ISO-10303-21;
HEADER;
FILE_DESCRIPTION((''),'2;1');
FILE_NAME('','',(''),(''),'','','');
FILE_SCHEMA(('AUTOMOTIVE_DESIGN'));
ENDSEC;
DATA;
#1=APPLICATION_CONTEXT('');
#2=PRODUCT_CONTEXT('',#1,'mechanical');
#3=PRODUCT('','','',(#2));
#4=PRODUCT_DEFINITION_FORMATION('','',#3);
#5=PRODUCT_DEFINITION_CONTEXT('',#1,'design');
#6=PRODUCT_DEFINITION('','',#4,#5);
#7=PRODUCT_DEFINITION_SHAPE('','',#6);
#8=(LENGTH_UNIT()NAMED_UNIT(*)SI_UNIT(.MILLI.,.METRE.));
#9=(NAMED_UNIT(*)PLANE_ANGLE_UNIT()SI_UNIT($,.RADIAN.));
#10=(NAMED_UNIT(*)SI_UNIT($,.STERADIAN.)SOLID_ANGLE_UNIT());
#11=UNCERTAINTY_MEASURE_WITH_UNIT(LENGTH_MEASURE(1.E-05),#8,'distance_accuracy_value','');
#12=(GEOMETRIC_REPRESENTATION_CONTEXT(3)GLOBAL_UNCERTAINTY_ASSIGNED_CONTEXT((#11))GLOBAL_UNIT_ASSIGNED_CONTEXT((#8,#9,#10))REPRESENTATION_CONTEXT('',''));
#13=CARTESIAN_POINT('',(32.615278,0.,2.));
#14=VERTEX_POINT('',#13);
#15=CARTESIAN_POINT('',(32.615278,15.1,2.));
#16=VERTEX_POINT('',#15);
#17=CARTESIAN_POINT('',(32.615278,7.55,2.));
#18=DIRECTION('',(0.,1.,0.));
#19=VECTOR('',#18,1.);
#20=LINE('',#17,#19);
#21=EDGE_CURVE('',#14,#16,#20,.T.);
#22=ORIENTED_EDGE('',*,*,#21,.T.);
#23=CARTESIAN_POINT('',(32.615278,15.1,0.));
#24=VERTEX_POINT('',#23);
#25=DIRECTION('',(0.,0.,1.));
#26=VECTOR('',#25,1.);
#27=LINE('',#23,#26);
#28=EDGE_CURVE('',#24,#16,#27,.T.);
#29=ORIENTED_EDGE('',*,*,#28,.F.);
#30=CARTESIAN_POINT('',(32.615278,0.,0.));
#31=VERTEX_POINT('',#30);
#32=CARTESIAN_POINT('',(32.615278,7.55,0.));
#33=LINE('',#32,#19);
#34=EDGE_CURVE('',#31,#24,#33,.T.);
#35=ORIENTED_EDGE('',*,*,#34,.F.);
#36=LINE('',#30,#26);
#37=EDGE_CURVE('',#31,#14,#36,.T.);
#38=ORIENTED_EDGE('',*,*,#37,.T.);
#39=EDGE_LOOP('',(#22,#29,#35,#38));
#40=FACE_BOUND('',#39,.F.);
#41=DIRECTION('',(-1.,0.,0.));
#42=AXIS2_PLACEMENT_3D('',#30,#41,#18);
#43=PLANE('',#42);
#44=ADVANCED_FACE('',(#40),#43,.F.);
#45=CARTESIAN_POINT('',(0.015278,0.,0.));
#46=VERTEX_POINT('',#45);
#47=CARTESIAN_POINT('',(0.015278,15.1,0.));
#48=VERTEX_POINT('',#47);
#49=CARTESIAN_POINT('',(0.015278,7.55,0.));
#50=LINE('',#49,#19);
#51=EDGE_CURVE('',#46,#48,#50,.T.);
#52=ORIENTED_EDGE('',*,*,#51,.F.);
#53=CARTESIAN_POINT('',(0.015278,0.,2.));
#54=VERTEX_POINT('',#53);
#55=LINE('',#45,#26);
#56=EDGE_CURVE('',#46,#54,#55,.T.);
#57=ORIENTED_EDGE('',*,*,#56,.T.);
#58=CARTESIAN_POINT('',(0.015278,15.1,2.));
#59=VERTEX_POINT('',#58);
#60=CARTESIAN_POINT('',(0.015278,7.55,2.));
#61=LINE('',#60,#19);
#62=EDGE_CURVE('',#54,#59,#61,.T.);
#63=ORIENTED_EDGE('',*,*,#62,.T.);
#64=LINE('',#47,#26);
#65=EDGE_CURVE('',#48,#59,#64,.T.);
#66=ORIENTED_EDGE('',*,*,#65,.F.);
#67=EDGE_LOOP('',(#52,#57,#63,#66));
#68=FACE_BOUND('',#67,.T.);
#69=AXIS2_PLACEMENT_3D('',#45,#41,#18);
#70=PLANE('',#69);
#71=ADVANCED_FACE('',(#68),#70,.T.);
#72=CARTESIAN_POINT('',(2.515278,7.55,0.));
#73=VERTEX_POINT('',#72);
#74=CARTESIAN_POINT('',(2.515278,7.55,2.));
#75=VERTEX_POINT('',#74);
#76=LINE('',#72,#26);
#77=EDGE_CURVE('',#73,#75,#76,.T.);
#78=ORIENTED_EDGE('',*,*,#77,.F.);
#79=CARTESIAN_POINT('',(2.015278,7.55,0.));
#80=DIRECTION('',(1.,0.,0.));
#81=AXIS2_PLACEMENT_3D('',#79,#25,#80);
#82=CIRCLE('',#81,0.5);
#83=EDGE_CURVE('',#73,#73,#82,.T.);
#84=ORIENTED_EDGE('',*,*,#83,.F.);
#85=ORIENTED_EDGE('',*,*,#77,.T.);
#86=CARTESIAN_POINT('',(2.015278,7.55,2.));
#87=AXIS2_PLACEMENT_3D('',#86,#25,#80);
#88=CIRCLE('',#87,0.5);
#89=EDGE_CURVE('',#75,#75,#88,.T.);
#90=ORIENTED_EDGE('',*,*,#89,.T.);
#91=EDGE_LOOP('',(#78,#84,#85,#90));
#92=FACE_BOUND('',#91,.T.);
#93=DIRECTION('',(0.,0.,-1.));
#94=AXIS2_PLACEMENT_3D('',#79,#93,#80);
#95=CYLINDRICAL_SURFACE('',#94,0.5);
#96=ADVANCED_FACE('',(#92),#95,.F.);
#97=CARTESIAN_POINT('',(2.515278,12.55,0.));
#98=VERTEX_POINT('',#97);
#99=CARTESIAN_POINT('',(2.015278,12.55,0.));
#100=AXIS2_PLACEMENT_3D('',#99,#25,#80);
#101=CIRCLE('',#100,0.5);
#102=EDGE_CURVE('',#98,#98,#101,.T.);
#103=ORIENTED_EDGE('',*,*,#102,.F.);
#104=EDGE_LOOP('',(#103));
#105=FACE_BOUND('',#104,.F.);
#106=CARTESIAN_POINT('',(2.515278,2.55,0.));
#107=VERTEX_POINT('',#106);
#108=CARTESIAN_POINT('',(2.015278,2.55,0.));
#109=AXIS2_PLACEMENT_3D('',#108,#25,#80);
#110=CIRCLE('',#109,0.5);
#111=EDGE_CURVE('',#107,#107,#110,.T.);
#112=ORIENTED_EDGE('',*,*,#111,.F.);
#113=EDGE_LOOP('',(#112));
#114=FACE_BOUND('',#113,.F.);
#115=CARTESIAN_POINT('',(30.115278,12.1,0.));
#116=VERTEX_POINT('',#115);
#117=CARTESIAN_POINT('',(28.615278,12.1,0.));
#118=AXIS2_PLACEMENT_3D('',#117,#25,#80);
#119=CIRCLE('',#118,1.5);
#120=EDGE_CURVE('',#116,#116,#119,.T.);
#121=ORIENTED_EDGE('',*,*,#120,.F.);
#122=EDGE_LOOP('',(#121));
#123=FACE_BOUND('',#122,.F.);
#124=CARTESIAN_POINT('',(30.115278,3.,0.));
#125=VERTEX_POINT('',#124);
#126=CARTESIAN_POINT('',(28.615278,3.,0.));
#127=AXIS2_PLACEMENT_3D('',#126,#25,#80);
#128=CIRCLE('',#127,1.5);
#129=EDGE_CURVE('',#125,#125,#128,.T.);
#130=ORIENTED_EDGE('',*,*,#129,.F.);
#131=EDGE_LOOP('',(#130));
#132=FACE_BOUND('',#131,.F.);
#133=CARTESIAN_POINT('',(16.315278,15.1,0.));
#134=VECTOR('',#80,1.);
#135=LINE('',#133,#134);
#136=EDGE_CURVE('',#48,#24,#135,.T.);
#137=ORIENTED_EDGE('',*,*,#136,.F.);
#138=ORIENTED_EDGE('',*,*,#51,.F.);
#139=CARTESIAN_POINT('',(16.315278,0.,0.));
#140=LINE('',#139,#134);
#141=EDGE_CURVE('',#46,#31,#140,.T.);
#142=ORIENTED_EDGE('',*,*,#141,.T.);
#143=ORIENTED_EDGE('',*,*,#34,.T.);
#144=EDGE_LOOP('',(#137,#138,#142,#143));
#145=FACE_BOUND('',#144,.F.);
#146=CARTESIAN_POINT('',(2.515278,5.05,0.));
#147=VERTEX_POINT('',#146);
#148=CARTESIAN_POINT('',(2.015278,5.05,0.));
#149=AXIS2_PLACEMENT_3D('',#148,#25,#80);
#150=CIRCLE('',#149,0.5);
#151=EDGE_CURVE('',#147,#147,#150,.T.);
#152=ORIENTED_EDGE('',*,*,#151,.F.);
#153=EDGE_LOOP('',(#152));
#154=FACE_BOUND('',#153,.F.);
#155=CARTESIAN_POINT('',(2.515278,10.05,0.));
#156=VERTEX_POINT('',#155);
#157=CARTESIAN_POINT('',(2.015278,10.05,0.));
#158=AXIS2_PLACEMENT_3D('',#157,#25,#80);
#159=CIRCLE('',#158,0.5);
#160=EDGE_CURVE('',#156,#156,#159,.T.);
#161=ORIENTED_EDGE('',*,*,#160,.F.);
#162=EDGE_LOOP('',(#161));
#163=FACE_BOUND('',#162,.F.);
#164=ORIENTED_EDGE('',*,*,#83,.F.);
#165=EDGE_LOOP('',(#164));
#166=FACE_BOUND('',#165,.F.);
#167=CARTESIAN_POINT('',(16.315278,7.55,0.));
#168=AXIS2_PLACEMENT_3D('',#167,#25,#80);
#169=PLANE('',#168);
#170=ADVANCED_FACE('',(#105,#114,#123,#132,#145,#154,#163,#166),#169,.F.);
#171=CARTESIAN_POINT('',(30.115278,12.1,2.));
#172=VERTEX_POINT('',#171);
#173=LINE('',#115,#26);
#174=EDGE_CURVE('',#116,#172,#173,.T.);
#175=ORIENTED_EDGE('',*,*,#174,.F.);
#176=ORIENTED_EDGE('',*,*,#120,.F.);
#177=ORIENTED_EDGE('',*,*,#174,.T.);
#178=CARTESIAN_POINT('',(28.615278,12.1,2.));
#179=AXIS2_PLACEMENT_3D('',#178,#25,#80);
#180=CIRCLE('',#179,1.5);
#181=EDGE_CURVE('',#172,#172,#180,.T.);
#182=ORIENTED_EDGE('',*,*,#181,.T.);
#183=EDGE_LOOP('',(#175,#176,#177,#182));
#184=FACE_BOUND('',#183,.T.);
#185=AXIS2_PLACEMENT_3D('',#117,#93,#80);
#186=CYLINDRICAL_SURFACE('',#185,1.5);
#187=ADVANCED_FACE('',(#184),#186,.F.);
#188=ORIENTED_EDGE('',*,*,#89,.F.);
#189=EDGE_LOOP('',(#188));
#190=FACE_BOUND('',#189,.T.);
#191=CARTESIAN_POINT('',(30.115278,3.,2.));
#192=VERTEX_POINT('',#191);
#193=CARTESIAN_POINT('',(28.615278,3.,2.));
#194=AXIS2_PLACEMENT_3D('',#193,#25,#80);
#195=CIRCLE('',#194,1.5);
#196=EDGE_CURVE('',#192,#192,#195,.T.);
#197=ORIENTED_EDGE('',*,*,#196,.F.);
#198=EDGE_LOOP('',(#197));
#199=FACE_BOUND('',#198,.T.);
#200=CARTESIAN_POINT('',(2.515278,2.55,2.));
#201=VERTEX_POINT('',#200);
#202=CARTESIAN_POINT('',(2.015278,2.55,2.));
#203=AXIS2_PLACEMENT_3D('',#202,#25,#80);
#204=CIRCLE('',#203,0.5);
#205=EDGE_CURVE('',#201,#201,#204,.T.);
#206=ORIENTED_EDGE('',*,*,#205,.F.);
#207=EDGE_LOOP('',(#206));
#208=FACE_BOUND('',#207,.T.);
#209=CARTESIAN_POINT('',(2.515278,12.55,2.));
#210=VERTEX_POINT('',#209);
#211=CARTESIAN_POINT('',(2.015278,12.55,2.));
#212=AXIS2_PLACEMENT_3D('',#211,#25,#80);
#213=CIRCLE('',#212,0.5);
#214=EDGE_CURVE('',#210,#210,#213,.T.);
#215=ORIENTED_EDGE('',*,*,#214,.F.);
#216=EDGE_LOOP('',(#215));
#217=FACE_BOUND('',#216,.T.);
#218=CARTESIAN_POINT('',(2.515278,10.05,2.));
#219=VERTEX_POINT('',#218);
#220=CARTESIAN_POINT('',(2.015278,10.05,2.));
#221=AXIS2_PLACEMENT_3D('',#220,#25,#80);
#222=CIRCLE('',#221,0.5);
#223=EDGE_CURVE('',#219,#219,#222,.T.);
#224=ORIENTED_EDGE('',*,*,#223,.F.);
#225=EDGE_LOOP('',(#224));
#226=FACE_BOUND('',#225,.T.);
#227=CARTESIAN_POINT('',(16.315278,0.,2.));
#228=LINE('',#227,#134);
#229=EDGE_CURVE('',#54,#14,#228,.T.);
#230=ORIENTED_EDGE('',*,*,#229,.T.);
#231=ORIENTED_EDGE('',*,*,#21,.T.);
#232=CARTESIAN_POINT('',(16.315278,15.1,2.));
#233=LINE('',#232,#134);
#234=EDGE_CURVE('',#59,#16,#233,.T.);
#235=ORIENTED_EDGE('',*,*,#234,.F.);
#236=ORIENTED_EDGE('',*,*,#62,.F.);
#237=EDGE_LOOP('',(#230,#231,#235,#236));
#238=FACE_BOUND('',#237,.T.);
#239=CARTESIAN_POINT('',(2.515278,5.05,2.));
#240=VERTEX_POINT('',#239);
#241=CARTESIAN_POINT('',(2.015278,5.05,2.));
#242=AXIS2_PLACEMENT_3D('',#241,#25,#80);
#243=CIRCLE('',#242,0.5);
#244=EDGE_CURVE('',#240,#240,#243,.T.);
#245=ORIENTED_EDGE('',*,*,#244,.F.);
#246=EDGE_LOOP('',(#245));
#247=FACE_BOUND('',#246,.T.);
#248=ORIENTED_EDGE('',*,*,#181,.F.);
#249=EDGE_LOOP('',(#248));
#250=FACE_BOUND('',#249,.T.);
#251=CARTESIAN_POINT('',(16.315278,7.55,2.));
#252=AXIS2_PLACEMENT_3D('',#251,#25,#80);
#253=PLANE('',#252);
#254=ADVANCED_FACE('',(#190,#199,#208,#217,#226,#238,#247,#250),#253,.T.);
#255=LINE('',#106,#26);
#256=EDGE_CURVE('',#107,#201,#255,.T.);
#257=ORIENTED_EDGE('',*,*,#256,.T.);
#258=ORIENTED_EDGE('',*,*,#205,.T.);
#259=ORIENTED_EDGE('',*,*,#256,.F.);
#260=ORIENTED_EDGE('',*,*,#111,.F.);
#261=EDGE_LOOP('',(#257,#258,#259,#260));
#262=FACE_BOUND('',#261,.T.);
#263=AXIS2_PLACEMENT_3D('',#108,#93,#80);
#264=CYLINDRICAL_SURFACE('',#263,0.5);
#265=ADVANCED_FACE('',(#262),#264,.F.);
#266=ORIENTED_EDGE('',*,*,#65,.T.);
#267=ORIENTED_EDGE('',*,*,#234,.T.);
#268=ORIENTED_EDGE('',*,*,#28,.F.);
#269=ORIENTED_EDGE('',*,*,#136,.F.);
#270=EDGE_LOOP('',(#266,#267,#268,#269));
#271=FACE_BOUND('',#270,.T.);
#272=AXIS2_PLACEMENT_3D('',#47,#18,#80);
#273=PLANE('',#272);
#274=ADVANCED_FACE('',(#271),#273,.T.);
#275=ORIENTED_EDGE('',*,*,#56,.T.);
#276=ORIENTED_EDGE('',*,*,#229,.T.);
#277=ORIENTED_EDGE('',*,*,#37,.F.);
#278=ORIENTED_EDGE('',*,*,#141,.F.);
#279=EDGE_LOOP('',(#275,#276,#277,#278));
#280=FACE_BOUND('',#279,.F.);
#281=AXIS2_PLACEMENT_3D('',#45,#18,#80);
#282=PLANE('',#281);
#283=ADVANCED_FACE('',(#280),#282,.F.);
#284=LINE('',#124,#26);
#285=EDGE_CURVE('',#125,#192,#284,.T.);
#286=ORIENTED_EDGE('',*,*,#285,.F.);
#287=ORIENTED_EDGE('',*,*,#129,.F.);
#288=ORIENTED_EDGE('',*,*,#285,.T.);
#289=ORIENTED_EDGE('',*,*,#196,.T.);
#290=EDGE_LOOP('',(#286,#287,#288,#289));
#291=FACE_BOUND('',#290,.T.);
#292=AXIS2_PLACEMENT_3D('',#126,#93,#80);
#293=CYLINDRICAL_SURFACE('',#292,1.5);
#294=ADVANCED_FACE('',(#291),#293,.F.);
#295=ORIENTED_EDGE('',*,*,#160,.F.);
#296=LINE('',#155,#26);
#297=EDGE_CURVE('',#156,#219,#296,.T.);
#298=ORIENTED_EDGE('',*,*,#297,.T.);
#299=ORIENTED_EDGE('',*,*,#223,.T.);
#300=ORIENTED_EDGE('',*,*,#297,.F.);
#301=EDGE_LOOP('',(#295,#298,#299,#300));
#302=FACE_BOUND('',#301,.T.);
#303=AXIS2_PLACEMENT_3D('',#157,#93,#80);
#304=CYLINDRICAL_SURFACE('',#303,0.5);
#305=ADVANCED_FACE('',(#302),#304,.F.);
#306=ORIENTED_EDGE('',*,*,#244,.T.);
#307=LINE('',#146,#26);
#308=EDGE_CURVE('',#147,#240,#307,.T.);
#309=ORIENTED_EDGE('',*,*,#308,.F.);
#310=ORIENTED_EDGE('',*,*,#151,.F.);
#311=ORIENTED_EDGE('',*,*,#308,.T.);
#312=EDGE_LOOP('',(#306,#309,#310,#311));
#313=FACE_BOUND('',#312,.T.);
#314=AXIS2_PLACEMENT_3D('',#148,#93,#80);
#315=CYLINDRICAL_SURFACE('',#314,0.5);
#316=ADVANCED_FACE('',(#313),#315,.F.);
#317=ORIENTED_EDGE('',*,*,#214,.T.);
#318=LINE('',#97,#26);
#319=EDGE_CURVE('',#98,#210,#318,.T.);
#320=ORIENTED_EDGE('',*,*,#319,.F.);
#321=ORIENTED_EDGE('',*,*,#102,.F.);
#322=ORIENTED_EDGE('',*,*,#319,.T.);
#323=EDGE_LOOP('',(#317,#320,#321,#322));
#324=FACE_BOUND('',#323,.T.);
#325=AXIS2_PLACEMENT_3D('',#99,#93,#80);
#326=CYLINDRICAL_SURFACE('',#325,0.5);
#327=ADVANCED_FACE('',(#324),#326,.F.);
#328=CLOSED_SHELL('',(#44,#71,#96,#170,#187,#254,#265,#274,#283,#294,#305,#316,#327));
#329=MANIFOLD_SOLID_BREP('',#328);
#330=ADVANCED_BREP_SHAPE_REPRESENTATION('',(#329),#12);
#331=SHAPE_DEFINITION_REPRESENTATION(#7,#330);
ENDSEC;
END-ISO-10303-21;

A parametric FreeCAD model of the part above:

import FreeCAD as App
import Part
import Sketcher
from FreeCAD import Vector

doc = App.newDocument("Part")
params = doc.addObject("Spreadsheet::Sheet", "Params")
for row, (alias, value) in enumerate([
    ("sketch1_diameter", "1 mm"),
    ("sketch1_diameter2", "3 mm"),
    ("sketch1_width", "32.6 mm"),
    ("sketch1_height", "15.1 mm"),
    ("pad1_length", "2 mm"),
], start=1):
    params.set(f"A{row}", alias)
    params.set(f"B{row}", "=" + value)
    params.setAlias(f"B{row}", alias)

body = doc.addObject("PartDesign::Body", "Body")

sketch1 = doc.addObject("Sketcher::SketchObject", "Sketch")
body.addObject(sketch1)
sketch1.AttachmentSupport = (doc.XY_Plane, [""])
sketch1.MapMode = "FlatFace"
sketch1.addGeometry([
    Part.LineSegment(Vector(0, 15.1, 0), Vector(0, 0, 0)),
    Part.LineSegment(Vector(0, 0, 0), Vector(32.6, 0, 0)),
    Part.LineSegment(Vector(32.6, 0, 0), Vector(32.6, 15.1, 0)),
    Part.LineSegment(Vector(32.6, 15.1, 0), Vector(0, 15.1, 0)),
    Part.Circle(Vector(2, 2.5, 0), Vector(0, 0, 1), 0.5),
    Part.Circle(Vector(2, 5, 0), Vector(0, 0, 1), 0.5),
    Part.Circle(Vector(28.6, 3, 0), Vector(0, 0, 1), 1.5),
    Part.Circle(Vector(2, 7.5, 0), Vector(0, 0, 1), 0.5),
    Part.Circle(Vector(2, 10.1, 0), Vector(0, 0, 1), 0.5),
    Part.Circle(Vector(2, 12.6, 0), Vector(0, 0, 1), 0.5),
    Part.Circle(Vector(28.6, 12.1, 0), Vector(0, 0, 1), 1.5),
], False)
sketch1.addConstraint([
    Sketcher.Constraint("Coincident", 0, 2, 1, 1),
    Sketcher.Constraint("Coincident", 1, 2, 2, 1),
    Sketcher.Constraint("Coincident", 2, 2, 3, 1),
    Sketcher.Constraint("Coincident", 3, 2, 0, 1),
    Sketcher.Constraint("Vertical", 0),
    Sketcher.Constraint("Horizontal", 1),
    Sketcher.Constraint("Vertical", 2),
    Sketcher.Constraint("Horizontal", 3),
    Sketcher.Constraint("Equal", 4, 5),
    Sketcher.Constraint("Equal", 5, 7),
    Sketcher.Constraint("Equal", 7, 8),
    Sketcher.Constraint("Equal", 8, 9),
    Sketcher.Constraint("Equal", 6, 10),
    Sketcher.Constraint("PointOnObject", 0, 2, -1),
    Sketcher.Constraint("Vertical", 4, 3, 5, 3),
    Sketcher.Constraint("Vertical", 5, 3, 7, 3),
    Sketcher.Constraint("Vertical", 7, 3, 8, 3),
    Sketcher.Constraint("Vertical", 8, 3, 9, 3),
    Sketcher.Constraint("Vertical", 6, 3, 10, 3),
    Sketcher.Constraint("Diameter", 4, 1.0),
    Sketcher.Constraint("Diameter", 6, 3.0),
    Sketcher.Constraint("DistanceX", 1, 1, 1, 2, 32.6),
    Sketcher.Constraint("DistanceY", 0, 2, 0, 1, 15.1),
    Sketcher.Constraint("DistanceY", -1, 1, 6, 3, 3.0),
    Sketcher.Constraint("DistanceY", 4, 3, 7, 3, 5.0),
    Sketcher.Constraint("DistanceY", 5, 3, 8, 3, 5.0),
    Sketcher.Constraint("DistanceY", 7, 3, 9, 3, 5.0),
    Sketcher.Constraint("DistanceX", 0, 2, 4, 3, 2.0),
    Sketcher.Constraint("DistanceX", 6, 3, 1, 2, 4.0),
    Sketcher.Constraint("DistanceY", 10, 3, 2, 2, 3.0),
    Sketcher.Constraint("DistanceY", 4, 3, 5, 3, 2.5),
    Sketcher.Constraint("DistanceY", -1, 1, 4, 3, 2.55),
    Sketcher.Constraint("DistanceX", -1, 1, 6, 3, 28.615278),
])
sketch1.setExpression("Constraints[19]", "Params.sketch1_diameter")
sketch1.setExpression("Constraints[20]", "Params.sketch1_diameter2")
sketch1.setExpression("Constraints[21]", "Params.sketch1_width")
sketch1.setExpression("Constraints[22]", "Params.sketch1_height")
pad1 = doc.addObject("PartDesign::Pad", "Pad")
body.addObject(pad1)
pad1.Profile = sketch1
pad1.setExpression("Length", "Params.pad1_length")

doc.recompute()
